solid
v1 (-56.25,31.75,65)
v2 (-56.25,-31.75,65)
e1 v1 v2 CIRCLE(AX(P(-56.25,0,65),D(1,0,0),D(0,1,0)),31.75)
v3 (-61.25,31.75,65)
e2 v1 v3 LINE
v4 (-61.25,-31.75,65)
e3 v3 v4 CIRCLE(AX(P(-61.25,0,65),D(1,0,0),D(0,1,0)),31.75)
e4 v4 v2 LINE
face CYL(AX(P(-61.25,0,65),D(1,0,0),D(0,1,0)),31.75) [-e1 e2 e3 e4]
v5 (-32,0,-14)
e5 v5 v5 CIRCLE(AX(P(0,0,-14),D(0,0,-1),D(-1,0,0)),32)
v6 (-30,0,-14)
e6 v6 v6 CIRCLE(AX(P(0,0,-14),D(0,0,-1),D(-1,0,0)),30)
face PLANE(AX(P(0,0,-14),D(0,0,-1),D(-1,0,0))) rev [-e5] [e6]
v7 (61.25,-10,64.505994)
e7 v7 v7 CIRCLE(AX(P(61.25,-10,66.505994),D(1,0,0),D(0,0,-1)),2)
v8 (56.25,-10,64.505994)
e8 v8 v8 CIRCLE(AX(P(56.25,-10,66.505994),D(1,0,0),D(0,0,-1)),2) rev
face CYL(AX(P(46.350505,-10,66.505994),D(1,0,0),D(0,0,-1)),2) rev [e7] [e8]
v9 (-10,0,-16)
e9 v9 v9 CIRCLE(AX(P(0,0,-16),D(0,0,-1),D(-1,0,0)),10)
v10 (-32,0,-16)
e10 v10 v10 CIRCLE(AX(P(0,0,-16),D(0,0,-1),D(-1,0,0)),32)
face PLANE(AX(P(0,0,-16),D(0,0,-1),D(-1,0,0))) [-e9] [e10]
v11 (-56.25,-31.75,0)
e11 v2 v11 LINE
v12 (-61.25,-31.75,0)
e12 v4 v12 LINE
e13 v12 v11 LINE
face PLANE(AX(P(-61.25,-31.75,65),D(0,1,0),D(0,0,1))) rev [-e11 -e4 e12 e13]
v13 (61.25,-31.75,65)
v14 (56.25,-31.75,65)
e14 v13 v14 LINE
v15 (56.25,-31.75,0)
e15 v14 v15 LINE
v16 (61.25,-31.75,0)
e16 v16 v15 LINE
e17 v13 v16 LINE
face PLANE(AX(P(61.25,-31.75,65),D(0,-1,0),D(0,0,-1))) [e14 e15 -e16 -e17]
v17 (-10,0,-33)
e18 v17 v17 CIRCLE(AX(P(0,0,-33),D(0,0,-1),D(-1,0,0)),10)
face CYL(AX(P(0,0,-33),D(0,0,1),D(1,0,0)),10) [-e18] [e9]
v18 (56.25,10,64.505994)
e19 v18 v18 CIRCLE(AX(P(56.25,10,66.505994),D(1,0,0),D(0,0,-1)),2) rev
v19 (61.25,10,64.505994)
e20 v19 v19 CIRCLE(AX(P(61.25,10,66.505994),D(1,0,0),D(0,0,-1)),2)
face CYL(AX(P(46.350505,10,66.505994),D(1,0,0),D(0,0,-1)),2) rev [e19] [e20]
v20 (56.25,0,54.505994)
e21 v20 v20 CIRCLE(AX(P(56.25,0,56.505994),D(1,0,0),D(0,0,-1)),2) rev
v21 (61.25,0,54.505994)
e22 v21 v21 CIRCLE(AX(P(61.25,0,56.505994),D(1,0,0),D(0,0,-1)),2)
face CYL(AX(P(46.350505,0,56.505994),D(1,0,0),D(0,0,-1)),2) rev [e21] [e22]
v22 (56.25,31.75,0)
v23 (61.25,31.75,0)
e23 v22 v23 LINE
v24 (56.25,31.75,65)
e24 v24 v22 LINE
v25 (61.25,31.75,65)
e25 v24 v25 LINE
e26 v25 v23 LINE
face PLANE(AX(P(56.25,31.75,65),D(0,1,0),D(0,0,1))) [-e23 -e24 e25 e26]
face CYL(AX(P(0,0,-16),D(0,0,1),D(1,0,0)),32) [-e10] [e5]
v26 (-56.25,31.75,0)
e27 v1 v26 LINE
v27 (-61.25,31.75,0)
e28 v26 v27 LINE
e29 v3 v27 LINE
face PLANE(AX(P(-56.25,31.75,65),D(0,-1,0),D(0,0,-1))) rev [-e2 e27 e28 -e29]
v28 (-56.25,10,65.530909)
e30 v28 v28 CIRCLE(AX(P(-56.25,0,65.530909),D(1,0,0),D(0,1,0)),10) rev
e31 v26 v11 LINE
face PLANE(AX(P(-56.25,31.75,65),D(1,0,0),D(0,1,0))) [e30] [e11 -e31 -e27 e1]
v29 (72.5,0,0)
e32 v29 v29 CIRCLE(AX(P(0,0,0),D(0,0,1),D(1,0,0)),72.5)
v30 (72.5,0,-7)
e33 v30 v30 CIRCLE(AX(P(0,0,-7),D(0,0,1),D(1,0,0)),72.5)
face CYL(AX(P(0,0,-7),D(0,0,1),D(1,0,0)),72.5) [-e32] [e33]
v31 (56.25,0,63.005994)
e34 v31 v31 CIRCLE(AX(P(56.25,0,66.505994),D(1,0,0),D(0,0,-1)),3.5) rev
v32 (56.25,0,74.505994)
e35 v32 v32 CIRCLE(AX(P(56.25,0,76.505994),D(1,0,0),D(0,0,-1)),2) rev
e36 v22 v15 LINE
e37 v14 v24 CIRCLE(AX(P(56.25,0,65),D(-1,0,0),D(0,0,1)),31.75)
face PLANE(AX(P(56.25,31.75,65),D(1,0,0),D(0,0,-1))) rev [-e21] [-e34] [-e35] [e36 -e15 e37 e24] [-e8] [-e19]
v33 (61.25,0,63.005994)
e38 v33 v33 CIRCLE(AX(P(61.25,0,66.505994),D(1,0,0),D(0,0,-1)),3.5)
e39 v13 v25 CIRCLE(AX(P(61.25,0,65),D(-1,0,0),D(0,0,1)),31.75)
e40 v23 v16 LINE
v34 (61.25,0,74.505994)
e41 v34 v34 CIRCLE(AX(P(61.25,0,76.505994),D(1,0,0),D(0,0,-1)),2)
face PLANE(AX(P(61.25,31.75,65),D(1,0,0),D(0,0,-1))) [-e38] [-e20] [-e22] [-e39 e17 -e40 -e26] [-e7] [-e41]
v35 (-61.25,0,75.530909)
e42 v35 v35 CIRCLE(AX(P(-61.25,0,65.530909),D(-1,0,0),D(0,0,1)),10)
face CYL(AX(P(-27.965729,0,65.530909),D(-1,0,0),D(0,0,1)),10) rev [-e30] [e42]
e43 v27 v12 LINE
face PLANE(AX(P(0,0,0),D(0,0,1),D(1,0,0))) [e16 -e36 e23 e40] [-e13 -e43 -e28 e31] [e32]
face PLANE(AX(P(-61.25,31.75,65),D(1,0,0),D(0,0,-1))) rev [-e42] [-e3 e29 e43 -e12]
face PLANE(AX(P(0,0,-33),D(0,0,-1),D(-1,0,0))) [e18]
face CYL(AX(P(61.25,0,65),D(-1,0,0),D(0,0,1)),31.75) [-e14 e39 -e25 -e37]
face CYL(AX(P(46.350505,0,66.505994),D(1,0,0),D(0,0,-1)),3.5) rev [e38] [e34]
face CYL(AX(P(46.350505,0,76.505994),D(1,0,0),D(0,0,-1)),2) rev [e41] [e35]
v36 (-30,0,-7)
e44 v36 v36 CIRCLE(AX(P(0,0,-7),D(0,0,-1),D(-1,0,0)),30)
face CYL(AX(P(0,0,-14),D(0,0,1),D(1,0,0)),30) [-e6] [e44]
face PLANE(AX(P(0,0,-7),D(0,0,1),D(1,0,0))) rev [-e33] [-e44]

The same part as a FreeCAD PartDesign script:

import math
import FreeCAD as App
import Part
import Sketcher
Q = App.Units.Quantity


def add_polygon(sketch, points):
    """Adds a closed chain of lines whose ends are joined by coincident constraints."""
    first, n = sketch.GeometryCount, len(points)
    for a, b in zip(points, points[1:] + points[:1]):
        sketch.addGeometry(Part.LineSegment(App.Vector(*a, 0), App.Vector(*b, 0)), False)
    for i in range(n):
        sketch.addConstraint(Sketcher.Constraint("Coincident", first + i, 2, first + (i + 1) % n, 1))

doc = App.newDocument("Part")
body = doc.addObject("PartDesign::Body", "Body")

sketch1 = doc.addObject("Sketcher::SketchObject", "Sketch")
body.addObject(sketch1)
sketch1.AttachmentSupport = (doc.XY_Plane, [""])
sketch1.MapMode = "FlatFace"
add_polygon(sketch1, [(56, 32), (56, -32), (61, -32), (61, 32)])
sketch1.addConstraint(Sketcher.Constraint("Vertical", 0))
sketch1.addConstraint(Sketcher.Constraint("Horizontal", 1))
sketch1.addConstraint(Sketcher.Constraint("Vertical", 2))
sketch1.addConstraint(Sketcher.Constraint("Horizontal", 3))
sketch1.addConstraint(Sketcher.Constraint("DistanceX", 1, 1, 1, 2, Q("5 mm")))
sketch1.addConstraint(Sketcher.Constraint("DistanceY", 0, 2, 0, 1, Q("63.5 mm")))
sketch1.addConstraint(Sketcher.Constraint("DistanceX", -1, 1, 0, 2, Q("56.25 mm")))
sketch1.addConstraint(Sketcher.Constraint("DistanceY", 0, 2, -1, 1, Q("31.75 mm")))
pad1 = doc.addObject("PartDesign::Pad", "Pad")
body.addObject(pad1)
pad1.Profile = sketch1
pad1.Length = 65
body2 = doc.addObject("PartDesign::Body", "Body001")

sketch2 = doc.addObject("Sketcher::SketchObject", "Sketch001")
body2.addObject(sketch2)
sketch2.AttachmentSupport = (doc.getObject("XY_Plane001"), [""])
sketch2.MapMode = "FlatFace"
add_polygon(sketch2, [(-61, 32), (-61, -32), (-56, -32), (-56, 32)])
sketch2.addConstraint(Sketcher.Constraint("Vertical", 0))
sketch2.addConstraint(Sketcher.Constraint("Horizontal", 1))
sketch2.addConstraint(Sketcher.Constraint("Vertical", 2))
sketch2.addConstraint(Sketcher.Constraint("Horizontal", 3))
sketch2.addConstraint(Sketcher.Constraint("DistanceX", 1, 1, 1, 2, Q("5 mm")))
sketch2.addConstraint(Sketcher.Constraint("DistanceY", 0, 2, 0, 1, Q("63.5 mm")))
sketch2.addConstraint(Sketcher.Constraint("DistanceX", 0, 2, -1, 1, Q("61.25 mm")))
sketch2.addConstraint(Sketcher.Constraint("DistanceY", 0, 2, -1, 1, Q("31.75 mm")))
pad2 = doc.addObject("PartDesign::Pad", "Pad001")
body2.addObject(pad2)
pad2.Profile = sketch2
pad2.Length = 65
body.AllowCompound = True
doc.recompute()

boolean = doc.addObject("PartDesign::Boolean", "Boolean")
body.addObject(boolean)
boolean.Type = "Fuse"
boolean.addObjects([body2])

sketch3 = doc.addObject("Sketcher::SketchObject", "Sketch002")
body.addObject(sketch3)
sketch3.AttachmentSupport = (doc.XY_Plane, [""])
sketch3.MapMode = "FlatFace"
sketch3.addGeometry(Part.Circle(App.Vector(0, 0, 0), App.Vector(0, 0, 1), 72), False)
sketch3.addConstraint(Sketcher.Constraint("Coincident", 0, 3, -1, 1))
sketch3.addConstraint(Sketcher.Constraint("Diameter", 0, Q("145 mm")))
pad3 = doc.addObject("PartDesign::Pad", "Pad002")
body.addObject(pad3)
pad3.Profile = sketch3
pad3.Length = 7
pad3.Reversed = True

sketch4 = doc.addObject("Sketcher::SketchObject", "Sketch003")
body.addObject(sketch4)
sketch4.AttachmentSupport = (doc.YZ_Plane, [""])
sketch4.MapMode = "FlatFace"
sketch4.AttachmentOffset = App.Placement(App.Vector(0, 0, 56.25), App.Rotation())
sketch4.addGeometry(Part.LineSegment(App.Vector(32, 65, 0), App.Vector(-32, 65, 0)), False)
sketch4.addGeometry(Part.ArcOfCircle(Part.Circle(App.Vector(0, 65, 0), App.Vector(0, 0, 1), 32), math.radians(0), math.radians(180)), False)
sketch4.addConstraint(Sketcher.Constraint("Coincident", 0, 1, 1, 1))
sketch4.addConstraint(Sketcher.Constraint("Coincident", 1, 2, 0, 2))
sketch4.addConstraint(Sketcher.Constraint("Horizontal", 0))
sketch4.addConstraint(Sketcher.Constraint("PointOnObject", 1, 3, -2))
sketch4.addConstraint(Sketcher.Constraint("Horizontal", 1, 3, 0, 1))
sketch4.addConstraint(Sketcher.Constraint("Radius", 1, Q("31.75 mm")))
sketch4.addConstraint(Sketcher.Constraint("DistanceY", -1, 1, 1, 3, Q("65 mm")))
pad4 = doc.addObject("PartDesign::Pad", "Pad003")
body.addObject(pad4)
pad4.Profile = sketch4
pad4.Length = 5

sketch5 = doc.addObject("Sketcher::SketchObject", "Sketch004")
body.addObject(sketch5)
sketch5.AttachmentSupport = (doc.YZ_Plane, [""])
sketch5.MapMode = "FlatFace"
sketch5.AttachmentOffset = App.Placement(App.Vector(0, 0, -61.25), App.Rotation())
sketch5.addGeometry(Part.LineSegment(App.Vector(-32, 65, 0), App.Vector(32, 65, 0)), False)
sketch5.addGeometry(Part.ArcOfCircle(Part.Circle(App.Vector(0, 65, 0), App.Vector(0, 0, 1), 32), math.radians(0), math.radians(180)), False)
sketch5.addConstraint(Sketcher.Constraint("Coincident", 0, 1, 1, 2))
sketch5.addConstraint(Sketcher.Constraint("Coincident", 1, 1, 0, 2))
sketch5.addConstraint(Sketcher.Constraint("Horizontal", 0))
sketch5.addConstraint(Sketcher.Constraint("PointOnObject", 1, 3, -2))
sketch5.addConstraint(Sketcher.Constraint("Horizontal", 1, 3, 0, 1))
sketch5.addConstraint(Sketcher.Constraint("Radius", 1, Q("31.75 mm")))
sketch5.addConstraint(Sketcher.Constraint("DistanceY", -1, 1, 1, 3, Q("65 mm")))
pad5 = doc.addObject("PartDesign::Pad", "Pad004")
body.addObject(pad5)
pad5.Profile = sketch5
pad5.Length = 5

sketch6 = doc.addObject("Sketcher::SketchObject", "Sketch005")
body.addObject(sketch6)
sketch6.AttachmentSupport = (doc.XY_Plane, [""])
sketch6.MapMode = "FlatFace"
sketch6.AttachmentOffset = App.Placement(App.Vector(0, 0, -7), App.Rotation())
sketch6.addGeometry(Part.Circle(App.Vector(0, 0, 0), App.Vector(0, 0, 1), 30), False)
sketch6.addConstraint(Sketcher.Constraint("Coincident", 0, 3, -1, 1))
sketch6.addConstraint(Sketcher.Constraint("Diameter", 0, Q("60 mm")))
pad6 = doc.addObject("PartDesign::Pad", "Pad005")
body.addObject(pad6)
pad6.Profile = sketch6
pad6.Length = 7
pad6.Reversed = True

sketch7 = doc.addObject("Sketcher::SketchObject", "Sketch006")
body.addObject(sketch7)
sketch7.AttachmentSupport = (doc.XY_Plane, [""])
sketch7.MapMode = "FlatFace"
sketch7.AttachmentOffset = App.Placement(App.Vector(0, 0, -14), App.Rotation())
sketch7.addGeometry(Part.Circle(App.Vector(0, 0, 0), App.Vector(0, 0, 1), 32), False)
sketch7.addConstraint(Sketcher.Constraint("Coincident", 0, 3, -1, 1))
sketch7.addConstraint(Sketcher.Constraint("Diameter", 0, Q("64 mm")))
pad7 = doc.addObject("PartDesign::Pad", "Pad006")
body.addObject(pad7)
pad7.Profile = sketch7
pad7.Length = 2
pad7.Reversed = True

sketch8 = doc.addObject("Sketcher::SketchObject", "Sketch007")
body.addObject(sketch8)
sketch8.AttachmentSupport = (doc.XY_Plane, [""])
sketch8.MapMode = "FlatFace"
sketch8.AttachmentOffset = App.Placement(App.Vector(0, 0, -16), App.Rotation())
sketch8.addGeometry(Part.Circle(App.Vector(0, 0, 0), App.Vector(0, 0, 1), 10), False)
sketch8.addConstraint(Sketcher.Constraint("Coincident", 0, 3, -1, 1))
sketch8.addConstraint(Sketcher.Constraint("Diameter", 0, Q("20 mm")))
pad8 = doc.addObject("PartDesign::Pad", "Pad007")
body.addObject(pad8)
pad8.Profile = sketch8
pad8.Length = 17
pad8.Reversed = True

sketch9 = doc.addObject("Sketcher::SketchObject", "Sketch008")
body.addObject(sketch9)
sketch9.AttachmentSupport = (doc.YZ_Plane, [""])
sketch9.MapMode = "FlatFace"
sketch9.AttachmentOffset = App.Placement(App.Vector(0, 0, 61.25), App.Rotation())
sketch9.addGeometry(Part.Circle(App.Vector(0, 66.5, 0), App.Vector(0, 0, 1), 3.5), False)
sketch9.addGeometry(Part.Circle(App.Vector(0, 76.5, 0), App.Vector(0, 0, 1), 2), False)
sketch9.addGeometry(Part.Circle(App.Vector(-10, 66.5, 0), App.Vector(0, 0, 1), 2), False)
sketch9.addGeometry(Part.Circle(App.Vector(0, 56.5, 0), App.Vector(0, 0, 1), 2), False)
sketch9.addGeometry(Part.Circle(App.Vector(10, 66.5, 0), App.Vector(0, 0, 1), 2), False)
sketch9.addConstraint(Sketcher.Constraint("Equal", 1, 2))
sketch9.addConstraint(Sketcher.Constraint("Equal", 2, 3))
sketch9.addConstraint(Sketcher.Constraint("Equal", 3, 4))
sketch9.addConstraint(Sketcher.Constraint("Symmetric", 2, 3, 4, 3, -2))
sketch9.addConstraint(Sketcher.Constraint("PointOnObject", 0, 3, -2))
sketch9.addConstraint(Sketcher.Constraint("PointOnObject", 1, 3, -2))
sketch9.addConstraint(Sketcher.Constraint("PointOnObject", 3, 3, -2))
sketch9.addConstraint(Sketcher.Constraint("Horizontal", 0, 3, 2, 3))
sketch9.addConstraint(Sketcher.Constraint("Diameter", 0, Q("7 mm")))
sketch9.addConstraint(Sketcher.Constraint("Diameter", 1, Q("4 mm")))
sketch9.addConstraint(Sketcher.Constraint("DistanceX", 2, 3, -1, 1, Q("10 mm")))
sketch9.addConstraint(Sketcher.Constraint("DistanceY", 0, 3, 1, 3, Q("10 mm")))
sketch9.addConstraint(Sketcher.Constraint("DistanceY", 3, 3, 0, 3, Q("10 mm")))
sketch9.addConstraint(Sketcher.Constraint("DistanceY", -1, 1, 0, 3, Q("66.505994 mm")))
pocket1 = doc.addObject("PartDesign::Pocket", "Pocket")
body.addObject(pocket1)
pocket1.Profile = sketch9
pocket1.Length = 5

sketch10 = doc.addObject("Sketcher::SketchObject", "Sketch009")
body.addObject(sketch10)
sketch10.AttachmentSupport = (doc.YZ_Plane, [""])
sketch10.MapMode = "FlatFace"
sketch10.AttachmentOffset = App.Placement(App.Vector(0, 0, -61.25), App.Rotation())
sketch10.addGeometry(Part.Circle(App.Vector(0, 66, 0), App.Vector(0, 0, 1), 10), False)
sketch10.addConstraint(Sketcher.Constraint("PointOnObject", 0, 3, -2))
sketch10.addConstraint(Sketcher.Constraint("Diameter", 0, Q("20 mm")))
sketch10.addConstraint(Sketcher.Constraint("DistanceY", -1, 1, 0, 3, Q("65.530909 mm")))
pocket2 = doc.addObject("PartDesign::Pocket", "Pocket001")
body.addObject(pocket2)
pocket2.Profile = sketch10
pocket2.Length = 5
pocket2.Reversed = True

doc.recompute()
